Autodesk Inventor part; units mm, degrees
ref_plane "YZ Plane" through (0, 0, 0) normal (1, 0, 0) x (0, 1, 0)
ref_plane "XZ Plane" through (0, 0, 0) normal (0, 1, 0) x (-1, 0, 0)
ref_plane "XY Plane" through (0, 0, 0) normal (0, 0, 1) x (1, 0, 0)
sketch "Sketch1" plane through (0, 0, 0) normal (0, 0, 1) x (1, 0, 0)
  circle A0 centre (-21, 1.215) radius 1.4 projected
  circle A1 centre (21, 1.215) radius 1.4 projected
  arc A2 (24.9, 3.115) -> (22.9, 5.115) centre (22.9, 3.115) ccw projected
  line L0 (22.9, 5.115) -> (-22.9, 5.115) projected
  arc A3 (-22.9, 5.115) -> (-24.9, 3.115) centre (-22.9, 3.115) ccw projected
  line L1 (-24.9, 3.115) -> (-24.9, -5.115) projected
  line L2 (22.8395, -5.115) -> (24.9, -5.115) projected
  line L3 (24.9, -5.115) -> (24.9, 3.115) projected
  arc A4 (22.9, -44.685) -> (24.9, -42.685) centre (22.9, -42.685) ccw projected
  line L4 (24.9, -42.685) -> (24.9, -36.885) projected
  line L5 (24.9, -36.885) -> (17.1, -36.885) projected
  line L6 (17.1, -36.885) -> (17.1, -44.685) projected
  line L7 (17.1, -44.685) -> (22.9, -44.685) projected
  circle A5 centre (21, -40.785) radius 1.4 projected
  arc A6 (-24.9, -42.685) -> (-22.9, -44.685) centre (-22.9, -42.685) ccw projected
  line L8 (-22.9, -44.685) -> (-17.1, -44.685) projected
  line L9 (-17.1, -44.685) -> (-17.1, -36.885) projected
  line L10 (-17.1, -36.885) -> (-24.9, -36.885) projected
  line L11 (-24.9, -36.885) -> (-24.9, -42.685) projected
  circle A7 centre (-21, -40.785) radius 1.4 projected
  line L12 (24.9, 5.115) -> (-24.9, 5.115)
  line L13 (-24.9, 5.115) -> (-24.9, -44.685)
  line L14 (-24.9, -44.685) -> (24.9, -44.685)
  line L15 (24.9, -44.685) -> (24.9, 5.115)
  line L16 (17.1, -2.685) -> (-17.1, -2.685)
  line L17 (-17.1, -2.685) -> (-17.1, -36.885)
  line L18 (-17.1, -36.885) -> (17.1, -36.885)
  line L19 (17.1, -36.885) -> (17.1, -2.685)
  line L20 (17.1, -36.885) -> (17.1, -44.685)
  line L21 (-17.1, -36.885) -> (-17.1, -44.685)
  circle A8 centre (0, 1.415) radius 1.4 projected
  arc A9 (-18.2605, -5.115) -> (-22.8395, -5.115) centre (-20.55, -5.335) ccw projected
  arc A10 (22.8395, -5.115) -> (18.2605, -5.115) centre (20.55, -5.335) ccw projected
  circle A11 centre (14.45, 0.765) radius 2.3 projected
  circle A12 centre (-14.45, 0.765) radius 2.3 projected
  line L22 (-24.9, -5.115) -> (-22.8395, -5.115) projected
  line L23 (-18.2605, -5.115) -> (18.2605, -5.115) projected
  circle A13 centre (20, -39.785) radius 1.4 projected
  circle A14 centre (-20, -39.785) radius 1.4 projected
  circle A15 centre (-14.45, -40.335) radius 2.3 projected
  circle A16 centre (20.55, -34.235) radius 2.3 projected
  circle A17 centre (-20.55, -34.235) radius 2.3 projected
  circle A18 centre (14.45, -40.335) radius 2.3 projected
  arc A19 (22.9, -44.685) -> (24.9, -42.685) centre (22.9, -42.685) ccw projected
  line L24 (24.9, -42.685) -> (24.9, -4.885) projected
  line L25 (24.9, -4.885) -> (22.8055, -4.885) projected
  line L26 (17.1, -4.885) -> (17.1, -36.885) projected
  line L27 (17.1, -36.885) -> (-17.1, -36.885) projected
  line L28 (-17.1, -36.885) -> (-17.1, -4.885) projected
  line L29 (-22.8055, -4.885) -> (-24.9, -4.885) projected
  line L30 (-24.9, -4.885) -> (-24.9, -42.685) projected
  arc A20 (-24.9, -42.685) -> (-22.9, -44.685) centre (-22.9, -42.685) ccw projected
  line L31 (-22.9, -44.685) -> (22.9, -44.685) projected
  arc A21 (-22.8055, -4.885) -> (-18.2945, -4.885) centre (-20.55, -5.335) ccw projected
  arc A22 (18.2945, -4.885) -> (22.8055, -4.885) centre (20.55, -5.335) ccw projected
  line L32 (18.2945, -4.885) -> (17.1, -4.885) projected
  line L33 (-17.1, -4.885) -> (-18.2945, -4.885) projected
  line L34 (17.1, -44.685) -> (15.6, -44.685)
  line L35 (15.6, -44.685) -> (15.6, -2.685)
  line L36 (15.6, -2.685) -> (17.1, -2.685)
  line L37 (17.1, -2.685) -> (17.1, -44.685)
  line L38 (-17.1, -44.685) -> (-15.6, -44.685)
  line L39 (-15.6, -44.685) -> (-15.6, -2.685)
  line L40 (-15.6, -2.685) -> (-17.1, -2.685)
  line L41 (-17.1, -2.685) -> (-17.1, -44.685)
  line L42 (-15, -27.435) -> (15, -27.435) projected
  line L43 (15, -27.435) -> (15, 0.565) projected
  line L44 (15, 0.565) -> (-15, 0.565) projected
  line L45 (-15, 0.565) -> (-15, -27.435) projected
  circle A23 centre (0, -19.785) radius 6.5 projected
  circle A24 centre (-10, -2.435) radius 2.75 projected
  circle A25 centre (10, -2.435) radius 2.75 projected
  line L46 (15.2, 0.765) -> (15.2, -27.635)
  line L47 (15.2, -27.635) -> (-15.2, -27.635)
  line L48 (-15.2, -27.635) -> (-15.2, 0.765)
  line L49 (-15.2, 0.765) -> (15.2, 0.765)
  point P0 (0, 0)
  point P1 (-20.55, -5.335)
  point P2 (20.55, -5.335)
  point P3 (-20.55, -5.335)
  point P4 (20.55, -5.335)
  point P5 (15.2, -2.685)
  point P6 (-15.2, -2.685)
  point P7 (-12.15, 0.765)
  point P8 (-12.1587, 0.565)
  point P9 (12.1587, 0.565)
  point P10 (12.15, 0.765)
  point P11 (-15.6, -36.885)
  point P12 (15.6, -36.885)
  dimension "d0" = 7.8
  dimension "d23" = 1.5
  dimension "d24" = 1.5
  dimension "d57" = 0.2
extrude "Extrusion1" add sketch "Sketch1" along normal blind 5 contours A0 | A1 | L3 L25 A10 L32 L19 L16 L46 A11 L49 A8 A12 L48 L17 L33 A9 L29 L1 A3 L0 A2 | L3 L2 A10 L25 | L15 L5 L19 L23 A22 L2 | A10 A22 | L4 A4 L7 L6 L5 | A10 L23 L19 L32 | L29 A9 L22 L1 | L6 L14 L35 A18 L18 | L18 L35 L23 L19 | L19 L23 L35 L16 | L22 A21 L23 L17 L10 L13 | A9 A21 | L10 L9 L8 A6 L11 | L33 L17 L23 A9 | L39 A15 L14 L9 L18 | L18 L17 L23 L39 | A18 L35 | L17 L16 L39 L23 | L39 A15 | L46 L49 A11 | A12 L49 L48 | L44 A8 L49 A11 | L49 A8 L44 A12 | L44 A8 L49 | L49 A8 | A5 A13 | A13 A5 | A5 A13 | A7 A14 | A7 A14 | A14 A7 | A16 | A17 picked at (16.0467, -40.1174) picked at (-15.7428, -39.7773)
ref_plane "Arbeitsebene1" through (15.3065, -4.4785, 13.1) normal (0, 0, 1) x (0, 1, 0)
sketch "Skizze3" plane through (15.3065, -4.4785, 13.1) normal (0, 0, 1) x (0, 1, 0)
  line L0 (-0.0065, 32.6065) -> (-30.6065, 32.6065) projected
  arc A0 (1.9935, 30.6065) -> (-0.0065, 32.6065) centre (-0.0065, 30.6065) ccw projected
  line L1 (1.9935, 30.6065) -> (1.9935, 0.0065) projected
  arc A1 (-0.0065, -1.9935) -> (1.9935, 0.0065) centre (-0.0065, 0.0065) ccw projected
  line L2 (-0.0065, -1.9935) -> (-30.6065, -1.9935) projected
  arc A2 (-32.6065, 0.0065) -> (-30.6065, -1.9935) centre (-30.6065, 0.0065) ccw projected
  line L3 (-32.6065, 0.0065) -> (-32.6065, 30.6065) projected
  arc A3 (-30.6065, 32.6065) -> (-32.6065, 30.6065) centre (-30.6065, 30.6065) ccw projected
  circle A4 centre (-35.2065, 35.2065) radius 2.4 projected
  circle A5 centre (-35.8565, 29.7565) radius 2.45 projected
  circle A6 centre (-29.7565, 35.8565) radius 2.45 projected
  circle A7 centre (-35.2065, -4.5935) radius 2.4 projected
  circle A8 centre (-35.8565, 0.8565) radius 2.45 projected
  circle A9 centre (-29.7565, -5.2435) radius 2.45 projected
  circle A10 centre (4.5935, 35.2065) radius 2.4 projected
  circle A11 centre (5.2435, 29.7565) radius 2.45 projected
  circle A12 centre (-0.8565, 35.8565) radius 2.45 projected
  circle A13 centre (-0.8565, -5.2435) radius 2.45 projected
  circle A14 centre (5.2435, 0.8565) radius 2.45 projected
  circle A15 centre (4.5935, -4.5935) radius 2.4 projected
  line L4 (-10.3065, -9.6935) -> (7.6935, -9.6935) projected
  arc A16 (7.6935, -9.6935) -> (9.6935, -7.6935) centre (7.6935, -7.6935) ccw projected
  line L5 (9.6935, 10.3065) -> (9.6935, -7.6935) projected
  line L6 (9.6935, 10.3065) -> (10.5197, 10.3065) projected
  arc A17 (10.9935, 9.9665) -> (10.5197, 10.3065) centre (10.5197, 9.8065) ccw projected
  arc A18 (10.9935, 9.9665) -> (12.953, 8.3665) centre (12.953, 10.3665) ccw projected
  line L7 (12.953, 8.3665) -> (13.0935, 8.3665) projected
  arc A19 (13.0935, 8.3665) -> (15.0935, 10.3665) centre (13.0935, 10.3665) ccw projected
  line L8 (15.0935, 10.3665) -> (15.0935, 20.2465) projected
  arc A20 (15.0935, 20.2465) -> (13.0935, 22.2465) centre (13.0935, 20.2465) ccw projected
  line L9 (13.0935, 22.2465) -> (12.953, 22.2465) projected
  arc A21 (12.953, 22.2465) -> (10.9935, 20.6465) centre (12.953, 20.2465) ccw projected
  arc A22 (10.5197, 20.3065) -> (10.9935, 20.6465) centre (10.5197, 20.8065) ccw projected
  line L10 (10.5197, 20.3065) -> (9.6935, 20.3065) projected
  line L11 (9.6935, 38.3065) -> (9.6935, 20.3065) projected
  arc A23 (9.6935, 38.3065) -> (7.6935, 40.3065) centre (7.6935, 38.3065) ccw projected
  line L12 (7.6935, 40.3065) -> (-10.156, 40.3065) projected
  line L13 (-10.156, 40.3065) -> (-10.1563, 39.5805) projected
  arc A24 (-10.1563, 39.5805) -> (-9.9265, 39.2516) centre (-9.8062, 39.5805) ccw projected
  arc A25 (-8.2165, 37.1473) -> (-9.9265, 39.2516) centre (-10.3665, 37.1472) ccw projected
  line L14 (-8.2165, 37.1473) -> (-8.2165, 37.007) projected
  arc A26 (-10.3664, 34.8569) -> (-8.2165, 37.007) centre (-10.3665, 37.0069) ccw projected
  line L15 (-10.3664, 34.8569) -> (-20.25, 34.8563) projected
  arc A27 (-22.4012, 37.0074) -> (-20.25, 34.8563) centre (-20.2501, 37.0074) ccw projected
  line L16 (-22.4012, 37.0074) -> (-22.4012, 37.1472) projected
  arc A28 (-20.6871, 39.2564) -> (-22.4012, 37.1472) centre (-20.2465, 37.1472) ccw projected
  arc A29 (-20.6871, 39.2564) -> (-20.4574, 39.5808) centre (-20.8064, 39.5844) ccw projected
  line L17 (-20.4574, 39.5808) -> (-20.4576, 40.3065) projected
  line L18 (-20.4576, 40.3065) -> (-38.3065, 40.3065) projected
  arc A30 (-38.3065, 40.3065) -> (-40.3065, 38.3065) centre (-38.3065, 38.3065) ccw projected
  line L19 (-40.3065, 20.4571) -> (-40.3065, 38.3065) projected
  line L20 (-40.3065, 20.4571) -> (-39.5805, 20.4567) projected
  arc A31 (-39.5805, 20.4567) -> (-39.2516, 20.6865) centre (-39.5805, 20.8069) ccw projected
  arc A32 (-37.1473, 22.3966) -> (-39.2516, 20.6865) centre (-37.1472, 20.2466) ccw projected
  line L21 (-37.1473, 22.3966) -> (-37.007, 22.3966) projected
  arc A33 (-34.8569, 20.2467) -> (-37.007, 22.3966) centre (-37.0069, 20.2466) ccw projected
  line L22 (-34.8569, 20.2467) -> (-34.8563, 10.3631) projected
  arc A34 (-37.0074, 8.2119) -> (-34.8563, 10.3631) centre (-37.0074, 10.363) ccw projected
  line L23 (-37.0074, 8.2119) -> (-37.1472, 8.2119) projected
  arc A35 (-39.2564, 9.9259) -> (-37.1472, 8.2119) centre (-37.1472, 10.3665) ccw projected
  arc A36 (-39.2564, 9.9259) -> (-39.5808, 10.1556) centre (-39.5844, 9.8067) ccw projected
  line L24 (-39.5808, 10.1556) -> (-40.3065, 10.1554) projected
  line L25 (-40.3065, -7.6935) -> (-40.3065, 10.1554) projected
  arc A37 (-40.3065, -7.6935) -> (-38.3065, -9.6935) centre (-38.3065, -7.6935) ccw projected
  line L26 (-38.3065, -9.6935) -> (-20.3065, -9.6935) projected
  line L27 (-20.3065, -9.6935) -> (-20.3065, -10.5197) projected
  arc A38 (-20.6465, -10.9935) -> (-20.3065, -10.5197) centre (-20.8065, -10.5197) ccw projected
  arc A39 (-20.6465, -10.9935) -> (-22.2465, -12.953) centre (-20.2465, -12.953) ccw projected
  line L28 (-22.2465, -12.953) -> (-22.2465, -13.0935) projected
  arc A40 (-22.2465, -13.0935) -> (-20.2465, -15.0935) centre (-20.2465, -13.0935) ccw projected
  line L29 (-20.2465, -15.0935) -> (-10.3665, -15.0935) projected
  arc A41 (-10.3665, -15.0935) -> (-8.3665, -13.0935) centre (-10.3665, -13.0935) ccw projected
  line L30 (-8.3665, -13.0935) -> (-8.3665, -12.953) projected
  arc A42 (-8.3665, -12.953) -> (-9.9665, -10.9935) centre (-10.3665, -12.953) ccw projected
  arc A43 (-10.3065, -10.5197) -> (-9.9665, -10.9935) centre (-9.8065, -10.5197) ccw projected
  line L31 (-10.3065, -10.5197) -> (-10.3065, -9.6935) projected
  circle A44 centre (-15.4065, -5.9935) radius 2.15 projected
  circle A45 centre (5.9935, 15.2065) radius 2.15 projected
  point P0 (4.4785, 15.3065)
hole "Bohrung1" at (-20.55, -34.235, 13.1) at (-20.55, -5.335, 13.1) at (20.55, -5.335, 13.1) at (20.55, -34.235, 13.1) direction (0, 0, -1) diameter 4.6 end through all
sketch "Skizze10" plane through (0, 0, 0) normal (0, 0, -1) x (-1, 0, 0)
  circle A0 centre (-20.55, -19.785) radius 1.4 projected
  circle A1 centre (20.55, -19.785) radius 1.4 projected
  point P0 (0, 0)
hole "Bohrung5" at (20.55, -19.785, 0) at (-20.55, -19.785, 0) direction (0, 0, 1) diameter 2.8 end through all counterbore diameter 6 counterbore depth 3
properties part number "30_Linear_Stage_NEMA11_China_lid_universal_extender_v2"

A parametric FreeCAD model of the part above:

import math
import FreeCAD as App
import Part
import Sketcher

V = App.Vector
Q = App.Units.Quantity

doc = App.newDocument("Part")
body = doc.addObject("PartDesign::Body", "Body")

# Sketch on XY plane
sketch1 = body.newObject("Sketcher::SketchObject", "Sketch")
sketch1.AttachmentSupport = (doc.getObject("XY_Plane"), [""])
sketch1.MapMode = "FlatFace"
sketch1.addGeometry(Part.ArcOfCircle(Part.Circle(V(22.9, 3.12, 0), V(0, 0, 1), 2), math.radians(0), math.radians(90)), False)
sketch1.addGeometry(Part.LineSegment(V(22.9, 5.12, 0), V(-22.9, 5.12, 0)), False)
sketch1.addGeometry(Part.ArcOfCircle(Part.Circle(V(-22.9, 3.12, 0), V(0, 0, 1), 2), math.radians(90), math.radians(180)), False)
sketch1.addGeometry(Part.LineSegment(V(-24.9, 3.12, 0), V(-24.9, -42.69, 0)), False)
sketch1.addGeometry(Part.ArcOfCircle(Part.Circle(V(-22.9, -42.69, 0), V(0, 0, 1), 2), math.radians(180), math.radians(270)), False)
sketch1.addGeometry(Part.LineSegment(V(-22.9, -44.69, 0), V(-15.6, -44.69, 0)), False)
sketch1.addGeometry(Part.LineSegment(V(-15.6, -44.69, 0), V(-15.6, -2.69, 0)), False)
sketch1.addGeometry(Part.LineSegment(V(-15.6, -2.69, 0), V(-15.2, -2.69, 0)), False)
sketch1.addGeometry(Part.LineSegment(V(-15.2, -2.69, 0), V(-15.2, 0.77, 0)), False)
sketch1.addGeometry(Part.LineSegment(V(-15.2, 0.77, 0), V(-12.15, 0.77, 0)), False)
sketch1.addGeometry(Part.ArcOfCircle(Part.Circle(V(-14.45, 0.77, 0), V(0, 0, 1), 2.3), math.radians(-4.99), math.radians(0)), False)
sketch1.addGeometry(Part.LineSegment(V(-12.16, 0.56, 0), V(12.16, 0.56, 0)), False)
sketch1.addGeometry(Part.ArcOfCircle(Part.Circle(V(14.45, 0.77, 0), V(0, 0, 1), 2.3), math.radians(180), math.radians(184.99)), False)
sketch1.addGeometry(Part.LineSegment(V(12.15, 0.77, 0), V(15.2, 0.77, 0)), False)
sketch1.addGeometry(Part.LineSegment(V(15.2, 0.77, 0), V(15.2, -2.69, 0)), False)
sketch1.addGeometry(Part.LineSegment(V(15.2, -2.69, 0), V(15.6, -2.69, 0)), False)
sketch1.addGeometry(Part.LineSegment(V(15.6, -2.69, 0), V(15.6, -44.69, 0)), False)
sketch1.addGeometry(Part.LineSegment(V(15.6, -44.69, 0), V(22.9, -44.69, 0)), False)
sketch1.addGeometry(Part.ArcOfCircle(Part.Circle(V(22.9, -42.69, 0), V(0, 0, 1), 2), math.radians(-90), math.radians(0)), False)
sketch1.addGeometry(Part.LineSegment(V(24.9, -42.69, 0), V(24.9, 3.12, 0)), False)
sketch1.addConstraint(Sketcher.Constraint("Tangent", 0, 2, 1, 1))
sketch1.addConstraint(Sketcher.Constraint("Tangent", 1, 2, 2, 1))
sketch1.addConstraint(Sketcher.Constraint("Tangent", 2, 2, 3, 1))
sketch1.addConstraint(Sketcher.Constraint("Tangent", 3, 2, 4, 1))
sketch1.addConstraint(Sketcher.Constraint("Tangent", 4, 2, 5, 1))
sketch1.addConstraint(Sketcher.Constraint("Coincident", 5, 2, 6, 1))
sketch1.addConstraint(Sketcher.Constraint("Coincident", 6, 2, 7, 1))
sketch1.addConstraint(Sketcher.Constraint("Coincident", 7, 2, 8, 1))
sketch1.addConstraint(Sketcher.Constraint("Coincident", 8, 2, 9, 1))
sketch1.addConstraint(Sketcher.Constraint("Coincident", 9, 2, 10, 2))
sketch1.addConstraint(Sketcher.Constraint("Coincident", 10, 1, 11, 1))
sketch1.addConstraint(Sketcher.Constraint("Coincident", 11, 2, 12, 2))
sketch1.addConstraint(Sketcher.Constraint("Coincident", 12, 1, 13, 1))
sketch1.addConstraint(Sketcher.Constraint("Coincident", 13, 2, 14, 1))
sketch1.addConstraint(Sketcher.Constraint("Coincident", 14, 2, 15, 1))
sketch1.addConstraint(Sketcher.Constraint("Coincident", 15, 2, 16, 1))
sketch1.addConstraint(Sketcher.Constraint("Coincident", 16, 2, 17, 1))
sketch1.addConstraint(Sketcher.Constraint("Tangent", 17, 2, 18, 1))
sketch1.addConstraint(Sketcher.Constraint("Tangent", 18, 2, 19, 1))
sketch1.addConstraint(Sketcher.Constraint("Tangent", 19, 2, 0, 1))
sketch1.addConstraint(Sketcher.Constraint("Horizontal", 1))
sketch1.addConstraint(Sketcher.Constraint("Vertical", 3))
sketch1.addConstraint(Sketcher.Constraint("Horizontal", 5))
sketch1.addConstraint(Sketcher.Constraint("Vertical", 6))
sketch1.addConstraint(Sketcher.Constraint("Horizontal", 7))
sketch1.addConstraint(Sketcher.Constraint("Vertical", 8))
sketch1.addConstraint(Sketcher.Constraint("Horizontal", 9))
sketch1.addConstraint(Sketcher.Constraint("Horizontal", 11))
sketch1.addConstraint(Sketcher.Constraint("Horizontal", 13))
sketch1.addConstraint(Sketcher.Constraint("Vertical", 14))
sketch1.addConstraint(Sketcher.Constraint("Horizontal", 15))
sketch1.addConstraint(Sketcher.Constraint("Vertical", 16))
sketch1.addConstraint(Sketcher.Constraint("Horizontal", 17))
sketch1.addConstraint(Sketcher.Constraint("Vertical", 19))
sketch1.addConstraint(Sketcher.Constraint("Equal", 0, 2))
sketch1.addConstraint(Sketcher.Constraint("Equal", 2, 4))
sketch1.addConstraint(Sketcher.Constraint("Equal", 10, 12))
sketch1.addConstraint(Sketcher.Constraint("Equal", 4, 18))
sketch1.addConstraint(Sketcher.Constraint("Symmetric", 10, 3, 12, 3, -2))
sketch1.addConstraint(Sketcher.Constraint("Symmetric", 4, 3, 18, 3, -2))
sketch1.addConstraint(Sketcher.Constraint("Symmetric", 8, 2, 13, 2, -2))
sketch1.addConstraint(Sketcher.Constraint("Symmetric", 6, 2, 15, 2, -2))
sketch1.addConstraint(Sketcher.Constraint("Horizontal", 12, 3, 8, 2))
sketch1.addConstraint(Sketcher.Constraint("Equal", 1, 3))
sketch1.addConstraint(Sketcher.Constraint("Radius", 0, Q("2 mm")))
sketch1.addConstraint(Sketcher.Constraint("Radius", 10, Q("2.3 mm")))
sketch1.addConstraint(Sketcher.Constraint("DistanceY", 6, 2, 1, 2, Q("7.8 mm")))
sketch1.addConstraint(Sketcher.Constraint("DistanceY", 10, 1, 9, 2, Q("0.2 mm")))
sketch1.addConstraint(Sketcher.Constraint("DistanceY", 6, 1, 6, 2, Q("42 mm")))
sketch1.addConstraint(Sketcher.Constraint("DistanceX", 5, 1, 5, 2, Q("7.3 mm")))
sketch1.addConstraint(Sketcher.Constraint("DistanceX", 7, 1, 7, 2, Q("0.4 mm")))
sketch1.addConstraint(Sketcher.Constraint("DistanceX", 9, 1, 9, 2, Q("3.05 mm")))
sketch1.addConstraint(Sketcher.Constraint("DistanceY", 8, 1, 8, 2, Q("3.45 mm")))
sketch1.addConstraint(Sketcher.Constraint("DistanceY", -1, 1, 0, 3, Q("3.115 mm")))
pad1 = body.newObject("PartDesign::Pad", "Pad")
pad1.Profile = sketch1
pad1.Length = 5

# Sketch on XY plane
sketch2 = body.newObject("Sketcher::SketchObject", "Sketch001")
sketch2.AttachmentSupport = (doc.getObject("XY_Plane"), [""])
sketch2.MapMode = "FlatFace"
sketch2.AttachmentOffset = App.Placement(V(0, 0, 13.1), App.Rotation())
sketch2.addGeometry(Part.Circle(V(-20.6, -34.2, 0), V(0, 0, 1), 2.3), False)
sketch2.addGeometry(Part.Circle(V(-20.6, -5.3, 0), V(0, 0, 1), 2.3), False)
sketch2.addGeometry(Part.Circle(V(20.6, -5.3, 0), V(0, 0, 1), 2.3), False)
sketch2.addGeometry(Part.Circle(V(20.6, -34.2, 0), V(0, 0, 1), 2.3), False)
sketch2.addConstraint(Sketcher.Constraint("Equal", 0, 1))
sketch2.addConstraint(Sketcher.Constraint("Equal", 1, 2))
sketch2.addConstraint(Sketcher.Constraint("Equal", 2, 3))
sketch2.addConstraint(Sketcher.Constraint("Symmetric", 1, 3, 2, 3, -2))
sketch2.addConstraint(Sketcher.Constraint("Symmetric", 0, 3, 3, 3, -2))
sketch2.addConstraint(Sketcher.Constraint("Vertical", 0, 3, 1, 3))
sketch2.addConstraint(Sketcher.Constraint("Diameter", 0, Q("4.6 mm")))
sketch2.addConstraint(Sketcher.Constraint("DistanceY", 0, 3, 1, 3, Q("28.9 mm")))
sketch2.addConstraint(Sketcher.Constraint("DistanceX", 1, 3, 2, 3, Q("41.1 mm")))
sketch2.addConstraint(Sketcher.Constraint("DistanceY", 0, 3, -1, 1, Q("34.235 mm")))
doc.recompute()
hole = body.newObject("PartDesign::Hole", "Hole")
hole.Profile = sketch2
hole.ThreadType = "None"
hole.Diameter = 4.6
hole.DepthType = "ThroughAll"

# Sketch on XY plane
sketch3 = body.newObject("Sketcher::SketchObject", "Sketch002")
sketch3.AttachmentSupport = (doc.getObject("XY_Plane"), [""])
sketch3.MapMode = "FlatFace"
sketch3.addGeometry(Part.Circle(V(20.6, -19.8, 0), V(0, 0, 1), 1.4), False)
sketch3.addGeometry(Part.Circle(V(-20.6, -19.8, 0), V(0, 0, 1), 1.4), False)
sketch3.addConstraint(Sketcher.Constraint("Equal", 0, 1))
sketch3.addConstraint(Sketcher.Constraint("Symmetric", 0, 3, 1, 3, -2))
sketch3.addConstraint(Sketcher.Constraint("Diameter", 0, Q("2.8 mm")))
sketch3.addConstraint(Sketcher.Constraint("DistanceX", 1, 3, 0, 3, Q("41.1 mm")))
sketch3.addConstraint(Sketcher.Constraint("DistanceY", 0, 3, -1, 1, Q("19.785 mm")))
doc.recompute()
hole2 = body.newObject("PartDesign::Hole", "Hole001")
hole2.Profile = sketch3
hole2.ThreadType = "None"
hole2.Diameter = 2.8
hole2.DepthType = "ThroughAll"
hole2.HoleCutType = "Counterbore"
hole2.HoleCutDiameter = 6
hole2.HoleCutDepth = 3
hole2.Reversed = True

doc.recompute()
